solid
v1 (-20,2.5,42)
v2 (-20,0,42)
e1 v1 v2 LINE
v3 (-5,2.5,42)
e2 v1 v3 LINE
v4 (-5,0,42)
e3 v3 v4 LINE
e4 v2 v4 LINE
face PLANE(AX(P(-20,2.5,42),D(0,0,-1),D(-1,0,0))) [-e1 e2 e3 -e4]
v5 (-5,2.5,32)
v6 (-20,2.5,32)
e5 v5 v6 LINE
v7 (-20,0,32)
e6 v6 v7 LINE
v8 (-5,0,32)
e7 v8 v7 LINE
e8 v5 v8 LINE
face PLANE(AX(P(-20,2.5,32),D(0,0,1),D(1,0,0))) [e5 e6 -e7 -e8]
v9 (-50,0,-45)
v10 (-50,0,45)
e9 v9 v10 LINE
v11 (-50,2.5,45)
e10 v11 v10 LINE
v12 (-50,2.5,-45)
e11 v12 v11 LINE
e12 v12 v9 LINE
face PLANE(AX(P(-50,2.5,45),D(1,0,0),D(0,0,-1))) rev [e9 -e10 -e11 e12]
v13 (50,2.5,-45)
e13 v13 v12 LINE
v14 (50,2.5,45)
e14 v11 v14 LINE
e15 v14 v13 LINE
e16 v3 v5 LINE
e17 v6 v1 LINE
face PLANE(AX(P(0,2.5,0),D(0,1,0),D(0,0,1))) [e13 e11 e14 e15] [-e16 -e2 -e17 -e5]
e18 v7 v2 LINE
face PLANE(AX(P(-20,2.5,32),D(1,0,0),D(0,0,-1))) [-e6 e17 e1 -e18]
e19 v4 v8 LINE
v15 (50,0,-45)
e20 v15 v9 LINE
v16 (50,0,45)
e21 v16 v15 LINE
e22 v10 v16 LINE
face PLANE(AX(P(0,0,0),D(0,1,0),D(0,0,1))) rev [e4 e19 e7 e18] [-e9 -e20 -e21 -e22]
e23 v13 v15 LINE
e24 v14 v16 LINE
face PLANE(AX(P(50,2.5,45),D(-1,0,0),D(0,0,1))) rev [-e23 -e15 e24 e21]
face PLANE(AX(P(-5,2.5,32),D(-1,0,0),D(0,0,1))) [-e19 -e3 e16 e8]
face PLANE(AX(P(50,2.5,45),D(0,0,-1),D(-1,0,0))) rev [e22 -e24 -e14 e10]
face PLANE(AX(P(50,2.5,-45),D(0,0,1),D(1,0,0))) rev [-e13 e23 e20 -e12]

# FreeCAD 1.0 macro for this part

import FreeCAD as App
import Part
import Sketcher

doc = App.newDocument("Part")
body = doc.addObject("PartDesign::Body", "Body")

sketch1 = body.newObject("Sketcher::SketchObject", "Sketch")
sketch1.AttachmentSupport = (doc.getObject("XZ_Plane"), [""])
sketch1.MapMode = "FlatFace"
sketch1.addGeometry(Part.LineSegment(App.Vector(-50, -45, 0), App.Vector(-50, 45, 0)), False)
sketch1.addGeometry(Part.LineSegment(App.Vector(-50, 45, 0), App.Vector(50, 45, 0)), False)
sketch1.addGeometry(Part.LineSegment(App.Vector(50, 45, 0), App.Vector(50, -45, 0)), False)
sketch1.addGeometry(Part.LineSegment(App.Vector(50, -45, 0), App.Vector(-50, -45, 0)), False)
sketch1.addGeometry(Part.LineSegment(App.Vector(-5, 42, 0), App.Vector(-20, 42, 0)), False)
sketch1.addGeometry(Part.LineSegment(App.Vector(-20, 42, 0), App.Vector(-20, 32, 0)), False)
sketch1.addGeometry(Part.LineSegment(App.Vector(-20, 32, 0), App.Vector(-5, 32, 0)), False)
sketch1.addGeometry(Part.LineSegment(App.Vector(-5, 32, 0), App.Vector(-5, 42, 0)), False)
sketch1.addConstraint(Sketcher.Constraint("Coincident", 0, 2, 1, 1))
sketch1.addConstraint(Sketcher.Constraint("Coincident", 1, 2, 2, 1))
sketch1.addConstraint(Sketcher.Constraint("Coincident", 2, 2, 3, 1))
sketch1.addConstraint(Sketcher.Constraint("Coincident", 3, 2, 0, 1))
sketch1.addConstraint(Sketcher.Constraint("Coincident", 4, 2, 5, 1))
sketch1.addConstraint(Sketcher.Constraint("Coincident", 5, 2, 6, 1))
sketch1.addConstraint(Sketcher.Constraint("Coincident", 6, 2, 7, 1))
sketch1.addConstraint(Sketcher.Constraint("Coincident", 7, 2, 4, 1))
sketch1.addConstraint(Sketcher.Constraint("Vertical", 0))
sketch1.addConstraint(Sketcher.Constraint("Horizontal", 1))
sketch1.addConstraint(Sketcher.Constraint("Vertical", 2))
sketch1.addConstraint(Sketcher.Constraint("Horizontal", 3))
sketch1.addConstraint(Sketcher.Constraint("Horizontal", 4))
sketch1.addConstraint(Sketcher.Constraint("Vertical", 5))
sketch1.addConstraint(Sketcher.Constraint("Horizontal", 6))
sketch1.addConstraint(Sketcher.Constraint("Vertical", 7))
sketch1.addConstraint(Sketcher.Constraint("Symmetric", 0, 2, 2, 2, -1, 1))
sketch1.addConstraint(Sketcher.Constraint("DistanceX", 1, 1, 1, 2, 100.0))
sketch1.addConstraint(Sketcher.Constraint("DistanceX", 4, 2, 4, 1, 15.0))
sketch1.addConstraint(Sketcher.Constraint("DistanceY", 0, 1, 0, 2, 90.0))
sketch1.addConstraint(Sketcher.Constraint("DistanceY", 5, 2, 5, 1, 10.0))
sketch1.addConstraint(Sketcher.Constraint("DistanceX", 4, 2, -1, 1, 20.0))
sketch1.addConstraint(Sketcher.Constraint("DistanceY", -1, 1, 4, 2, 42.0))
pad1 = body.newObject("PartDesign::Pad", "Pad")
pad1.Profile = sketch1
pad1.Length = 2.5
pad1.Reversed = True

doc.recompute()
